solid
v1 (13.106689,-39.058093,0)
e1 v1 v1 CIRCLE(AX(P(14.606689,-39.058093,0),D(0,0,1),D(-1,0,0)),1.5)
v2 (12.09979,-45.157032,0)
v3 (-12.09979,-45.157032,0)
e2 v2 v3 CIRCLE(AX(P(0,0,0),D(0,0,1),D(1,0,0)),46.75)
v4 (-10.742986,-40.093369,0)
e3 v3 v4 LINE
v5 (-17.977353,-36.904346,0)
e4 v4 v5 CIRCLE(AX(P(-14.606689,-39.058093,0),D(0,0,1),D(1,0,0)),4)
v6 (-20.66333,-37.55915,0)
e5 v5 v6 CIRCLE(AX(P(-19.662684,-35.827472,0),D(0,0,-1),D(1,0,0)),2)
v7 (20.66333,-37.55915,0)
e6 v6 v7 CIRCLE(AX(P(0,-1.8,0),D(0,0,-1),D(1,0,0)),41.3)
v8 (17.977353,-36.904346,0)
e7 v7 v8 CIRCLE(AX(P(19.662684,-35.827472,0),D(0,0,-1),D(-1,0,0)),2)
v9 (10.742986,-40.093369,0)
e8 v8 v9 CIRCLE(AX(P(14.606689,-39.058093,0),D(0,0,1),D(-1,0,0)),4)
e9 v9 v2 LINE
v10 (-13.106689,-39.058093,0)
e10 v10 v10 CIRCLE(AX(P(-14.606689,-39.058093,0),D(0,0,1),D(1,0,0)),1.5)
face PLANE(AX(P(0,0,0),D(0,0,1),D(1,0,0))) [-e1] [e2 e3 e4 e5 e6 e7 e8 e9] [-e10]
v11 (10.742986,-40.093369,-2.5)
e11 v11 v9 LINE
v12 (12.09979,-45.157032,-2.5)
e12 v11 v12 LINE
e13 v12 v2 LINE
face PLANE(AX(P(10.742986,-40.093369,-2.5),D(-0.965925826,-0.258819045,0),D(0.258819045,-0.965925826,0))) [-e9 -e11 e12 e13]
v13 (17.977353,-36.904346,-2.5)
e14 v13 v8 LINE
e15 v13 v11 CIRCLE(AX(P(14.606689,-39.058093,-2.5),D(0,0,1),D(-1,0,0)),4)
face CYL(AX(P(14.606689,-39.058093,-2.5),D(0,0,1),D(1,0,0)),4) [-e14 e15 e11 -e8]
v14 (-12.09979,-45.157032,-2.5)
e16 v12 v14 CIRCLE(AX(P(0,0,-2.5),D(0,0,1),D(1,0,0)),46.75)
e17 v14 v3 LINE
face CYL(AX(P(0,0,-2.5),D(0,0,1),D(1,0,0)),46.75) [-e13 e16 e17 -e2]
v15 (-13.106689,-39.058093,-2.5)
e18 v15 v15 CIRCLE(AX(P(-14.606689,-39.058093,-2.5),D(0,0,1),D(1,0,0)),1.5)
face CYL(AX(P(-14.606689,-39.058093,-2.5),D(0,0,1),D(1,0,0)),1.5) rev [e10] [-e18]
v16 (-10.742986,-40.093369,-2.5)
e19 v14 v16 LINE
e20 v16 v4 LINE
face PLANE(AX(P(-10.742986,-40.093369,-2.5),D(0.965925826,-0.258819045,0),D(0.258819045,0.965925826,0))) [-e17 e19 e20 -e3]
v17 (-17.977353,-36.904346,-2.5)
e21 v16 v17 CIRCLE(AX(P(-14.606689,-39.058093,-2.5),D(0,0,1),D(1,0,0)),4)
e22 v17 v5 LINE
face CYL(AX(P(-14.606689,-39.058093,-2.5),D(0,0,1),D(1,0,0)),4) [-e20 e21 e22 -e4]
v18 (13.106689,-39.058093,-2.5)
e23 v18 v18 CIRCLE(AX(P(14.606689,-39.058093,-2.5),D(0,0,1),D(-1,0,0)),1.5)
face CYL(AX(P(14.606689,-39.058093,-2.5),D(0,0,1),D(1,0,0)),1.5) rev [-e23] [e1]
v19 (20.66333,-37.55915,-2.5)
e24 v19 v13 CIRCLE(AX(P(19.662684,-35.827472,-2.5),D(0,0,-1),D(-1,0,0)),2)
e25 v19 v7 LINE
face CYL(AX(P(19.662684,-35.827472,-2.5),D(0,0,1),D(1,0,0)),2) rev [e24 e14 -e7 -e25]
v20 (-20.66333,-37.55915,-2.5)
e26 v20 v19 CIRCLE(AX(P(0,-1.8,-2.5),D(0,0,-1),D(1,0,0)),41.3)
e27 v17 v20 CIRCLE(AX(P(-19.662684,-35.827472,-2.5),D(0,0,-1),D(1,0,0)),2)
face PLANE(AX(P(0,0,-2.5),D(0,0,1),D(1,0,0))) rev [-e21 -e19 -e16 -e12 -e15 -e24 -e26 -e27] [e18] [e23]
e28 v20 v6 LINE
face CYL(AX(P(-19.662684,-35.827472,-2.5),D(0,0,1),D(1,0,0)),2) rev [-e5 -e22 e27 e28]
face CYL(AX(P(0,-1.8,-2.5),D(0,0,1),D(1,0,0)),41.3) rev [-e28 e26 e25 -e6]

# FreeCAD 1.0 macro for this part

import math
import FreeCAD as App
import Part
import Sketcher
Q = App.Units.Quantity

doc = App.newDocument("Part")
params = doc.addObject("Spreadsheet::Sheet", "Params")
for row, (alias, value) in enumerate([
    ("sketch1_diameter", "3 mm"),
    ("sketch1_radius", "4 mm"),
    ("sketch1_radius2", "2 mm"),
    ("sketch1_radius3", "41.3 mm"),
    ("sketch1_radius4", "46.75 mm"),
    ("pad1_length", "2.5 mm"),
], start=1):
    params.set(f"A{row}", alias)
    params.set(f"B{row}", "=" + value)
    params.setAlias(f"B{row}", alias)

body = doc.addObject("PartDesign::Body", "Body")

# Sketch on XY plane
sketch1 = body.newObject("Sketcher::SketchObject", "Sketch")
sketch1.AttachmentSupport = (doc.getObject("XY_Plane"), [""])
sketch1.MapMode = "FlatFace"
sketch1.addGeometry(Part.LineSegment(App.Vector(10.7, -40.1, 0), App.Vector(12.1, -45.2, 0)), False)
sketch1.addGeometry(Part.ArcOfCircle(Part.Circle(App.Vector(0, 0, 0), App.Vector(0, 0, 1), 46.8), math.radians(-75), math.radians(255)), False)
sketch1.addGeometry(Part.LineSegment(App.Vector(-12.1, -45.2, 0), App.Vector(-10.7, -40.1, 0)), False)
sketch1.addGeometry(Part.ArcOfCircle(Part.Circle(App.Vector(-14.6, -39.1, 0), App.Vector(0, 0, 1), 4), math.radians(-15), math.radians(147)), False)
sketch1.addGeometry(Part.ArcOfCircle(Part.Circle(App.Vector(-19.7, -35.8, 0), App.Vector(0, 0, 1), 2), math.radians(-120), math.radians(-33)), False)
sketch1.addGeometry(Part.ArcOfCircle(Part.Circle(App.Vector(0, -1.8, 0), App.Vector(0, 0, 1), 41.3), math.radians(-60), math.radians(240)), False)
sketch1.addGeometry(Part.ArcOfCircle(Part.Circle(App.Vector(19.7, -35.8, 0), App.Vector(0, 0, 1), 2), math.radians(-147), math.radians(-60)), False)
sketch1.addGeometry(Part.ArcOfCircle(Part.Circle(App.Vector(14.6, -39.1, 0), App.Vector(0, 0, 1), 4), math.radians(33), math.radians(195)), False)
sketch1.addGeometry(Part.Circle(App.Vector(-14.6, -39.1, 0), App.Vector(0, 0, 1), 1.5), False)
sketch1.addGeometry(Part.Circle(App.Vector(14.6, -39.1, 0), App.Vector(0, 0, 1), 1.5), False)
sketch1.addConstraint(Sketcher.Constraint("Coincident", 0, 2, 1, 1))
sketch1.addConstraint(Sketcher.Constraint("Coincident", 1, 2, 2, 1))
sketch1.addConstraint(Sketcher.Constraint("Tangent", 2, 2, 3, 1))
sketch1.addConstraint(Sketcher.Constraint("Tangent", 3, 2, 4, 2))
sketch1.addConstraint(Sketcher.Constraint("Tangent", 4, 1, 5, 2))
sketch1.addConstraint(Sketcher.Constraint("Tangent", 5, 1, 6, 2))
sketch1.addConstraint(Sketcher.Constraint("Tangent", 6, 1, 7, 1))
sketch1.addConstraint(Sketcher.Constraint("Tangent", 7, 2, 0, 1))
sketch1.addConstraint(Sketcher.Constraint("Coincident", 1, 3, -1, 1))
sketch1.addConstraint(Sketcher.Constraint("Coincident", 8, 3, 3, 3))
sketch1.addConstraint(Sketcher.Constraint("Coincident", 9, 3, 7, 3))
sketch1.addConstraint(Sketcher.Constraint("Equal", 4, 6))
sketch1.addConstraint(Sketcher.Constraint("Equal", 3, 7))
sketch1.addConstraint(Sketcher.Constraint("Equal", 8, 9))
sketch1.addConstraint(Sketcher.Constraint("Symmetric", 4, 3, 6, 3, -2))
sketch1.addConstraint(Sketcher.Constraint("Symmetric", 2, 2, 7, 2, -2))
sketch1.addConstraint(Sketcher.Constraint("Diameter", 8, 3.0))
sketch1.addConstraint(Sketcher.Constraint("Radius", 3, 4.0))
sketch1.addConstraint(Sketcher.Constraint("Radius", 4, 2.0))
sketch1.addConstraint(Sketcher.Constraint("Radius", 5, 41.3))
sketch1.addConstraint(Sketcher.Constraint("Angle", 0, Q("-75 deg")))
sketch1.addConstraint(Sketcher.Constraint("Radius", 1, 46.75))
sketch1.addConstraint(Sketcher.Constraint("DistanceY", 5, 3, -1, 1, 1.8))
sketch1.addConstraint(Sketcher.Constraint("DistanceX", 0, 2, 9, 3, 2.506899))
sketch1.addConstraint(Sketcher.Constraint("DistanceX", 4, 3, 2, 2, 8.919698))
sketch1.setExpression("Constraints[16]", "Params.sketch1_diameter")
sketch1.setExpression("Constraints[17]", "Params.sketch1_radius")
sketch1.setExpression("Constraints[18]", "Params.sketch1_radius2")
sketch1.setExpression("Constraints[19]", "Params.sketch1_radius3")
sketch1.setExpression("Constraints[21]", "Params.sketch1_radius4")
pad1 = body.newObject("PartDesign::Pad", "Pad")
pad1.Profile = sketch1
pad1.setExpression("Length", "Params.pad1_length")
pad1.Reversed = True

doc.recompute()
